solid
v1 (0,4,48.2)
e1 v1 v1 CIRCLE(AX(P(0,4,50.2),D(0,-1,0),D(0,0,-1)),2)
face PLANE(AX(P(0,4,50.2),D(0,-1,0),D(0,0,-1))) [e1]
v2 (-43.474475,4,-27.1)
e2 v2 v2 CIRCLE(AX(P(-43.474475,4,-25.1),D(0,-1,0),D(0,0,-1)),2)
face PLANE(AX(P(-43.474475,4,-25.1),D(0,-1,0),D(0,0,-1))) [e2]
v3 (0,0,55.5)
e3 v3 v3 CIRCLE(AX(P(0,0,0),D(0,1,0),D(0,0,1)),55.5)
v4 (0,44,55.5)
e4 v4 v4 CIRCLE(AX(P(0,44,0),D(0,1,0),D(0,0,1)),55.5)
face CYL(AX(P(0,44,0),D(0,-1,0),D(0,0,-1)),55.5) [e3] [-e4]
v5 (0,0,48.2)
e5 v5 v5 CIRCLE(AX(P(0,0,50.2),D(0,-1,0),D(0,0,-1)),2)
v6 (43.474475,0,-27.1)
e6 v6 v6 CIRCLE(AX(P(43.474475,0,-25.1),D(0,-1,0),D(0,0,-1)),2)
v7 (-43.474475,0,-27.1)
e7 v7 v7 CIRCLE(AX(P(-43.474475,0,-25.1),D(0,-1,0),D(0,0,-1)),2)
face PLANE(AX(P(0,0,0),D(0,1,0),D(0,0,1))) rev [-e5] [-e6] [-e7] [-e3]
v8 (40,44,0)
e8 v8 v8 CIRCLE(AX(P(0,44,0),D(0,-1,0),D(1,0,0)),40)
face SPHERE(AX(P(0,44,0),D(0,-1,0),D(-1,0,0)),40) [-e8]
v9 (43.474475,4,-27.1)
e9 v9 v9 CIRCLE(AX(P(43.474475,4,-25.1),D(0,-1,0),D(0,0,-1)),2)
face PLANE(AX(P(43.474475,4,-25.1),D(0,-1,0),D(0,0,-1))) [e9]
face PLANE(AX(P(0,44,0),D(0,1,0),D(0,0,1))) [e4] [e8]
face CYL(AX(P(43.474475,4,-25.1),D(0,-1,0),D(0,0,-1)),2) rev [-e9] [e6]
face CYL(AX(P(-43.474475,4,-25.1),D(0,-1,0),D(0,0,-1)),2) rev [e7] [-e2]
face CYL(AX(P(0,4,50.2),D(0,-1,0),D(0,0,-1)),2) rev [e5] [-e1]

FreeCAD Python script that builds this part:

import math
import FreeCAD as App
import Part
import Sketcher
from FreeCAD import Vector

doc = App.newDocument("Part")
params = doc.addObject("Spreadsheet::Sheet", "Params")
for row, (alias, value) in enumerate([
    ("sketch1_diameter", "111 mm"),
    ("pad1_length", "44 mm"),
    ("sketch2_radius", "40 mm"),
    ("revolution_angle", "360 deg"),
    ("sketch3_diameter", "4 mm"),
    ("pocket1_length", "4 mm"),
], start=1):
    params.set(f"A{row}", alias)
    params.set(f"B{row}", "=" + value)
    params.setAlias(f"B{row}", alias)

body = doc.addObject("PartDesign::Body", "Body")

# Sketch on XZ plane
sketch1 = body.newObject("Sketcher::SketchObject", "Sketch")
sketch1.AttachmentSupport = (doc.getObject("XZ_Plane"), [""])
sketch1.MapMode = "FlatFace"
sketch1.addGeometry(Part.Circle(Vector(0, 0, 0), Vector(0, 0, 1), 55.5), False)
sketch1.addConstraint([
    Sketcher.Constraint("Coincident", 0, 3, -1, 1),
    Sketcher.Constraint("Diameter", 0, 111.0),
])
sketch1.setExpression("Constraints[1]", "Params.sketch1_diameter")
pad1 = body.newObject("PartDesign::Pad", "Pad")
pad1.Profile = sketch1
pad1.setExpression("Length", "Params.pad1_length")
pad1.Reversed = True

# Sketch on XY plane
sketch2 = body.newObject("Sketcher::SketchObject", "Sketch001")
sketch2.AttachmentSupport = (doc.getObject("XY_Plane"), [""])
sketch2.MapMode = "FlatFace"
sketch2.addGeometry([
    Part.LineSegment(Vector(-40, 44, 0), Vector(0, 44, 0)),
    Part.LineSegment(Vector(0, 44, 0), Vector(0, 84, 0)),
    Part.ArcOfCircle(Part.Circle(Vector(0, 44, 0), Vector(0, 0, 1), 40), math.radians(90), math.radians(180)),
], False)
sketch2.addConstraint([
    Sketcher.Constraint("Coincident", 0, 2, 1, 1),
    Sketcher.Constraint("Coincident", 1, 2, 2, 1),
    Sketcher.Constraint("Coincident", 2, 2, 0, 1),
    Sketcher.Constraint("Horizontal", 0),
    Sketcher.Constraint("Vertical", 1),
    Sketcher.Constraint("Coincident", 0, 2, 2, 3),
    Sketcher.Constraint("PointOnObject", 2, 3, -2),
    Sketcher.Constraint("Radius", 2, 40.0),
    Sketcher.Constraint("DistanceY", -1, 1, 2, 3, 44.0),
])
sketch2.setExpression("Constraints[7]", "Params.sketch2_radius")
revolution = body.newObject("PartDesign::Revolution", "Revolution")
revolution.Profile = sketch2
revolution.ReferenceAxis = (sketch2, ["V_Axis"])
revolution.setExpression("Angle", "Params.revolution_angle")

# Sketch on XZ plane
sketch3 = body.newObject("Sketcher::SketchObject", "Sketch002")
sketch3.AttachmentSupport = (doc.getObject("XZ_Plane"), [""])
sketch3.MapMode = "FlatFace"
sketch3.addGeometry([
    Part.Circle(Vector(0, 50.2, 0), Vector(0, 0, 1), 2),
    Part.Circle(Vector(43.474475, -25.1, 0), Vector(0, 0, 1), 2),
    Part.Circle(Vector(-43.474475, -25.1, 0), Vector(0, 0, 1), 2),
], False)
sketch3.addConstraint([
    Sketcher.Constraint("Equal", 0, 1),
    Sketcher.Constraint("Equal", 1, 2),
    Sketcher.Constraint("Symmetric", 1, 3, 2, 3, -2),
    Sketcher.Constraint("PointOnObject", 0, 3, -2),
    Sketcher.Constraint("Diameter", 0, 4.0),
    Sketcher.Constraint("DistanceY", -1, 1, 0, 3, 50.2),
    Sketcher.Constraint("DistanceY", 1, 3, -1, 1, 25.1),
    Sketcher.Constraint("DistanceX", 2, 3, 1, 3, 86.948951),
])
sketch3.setExpression("Constraints[4]", "Params.sketch3_diameter")
pocket1 = body.newObject("PartDesign::Pocket", "Pocket")
pocket1.Profile = sketch3
pocket1.setExpression("Length", "Params.pocket1_length")

doc.recompute()
